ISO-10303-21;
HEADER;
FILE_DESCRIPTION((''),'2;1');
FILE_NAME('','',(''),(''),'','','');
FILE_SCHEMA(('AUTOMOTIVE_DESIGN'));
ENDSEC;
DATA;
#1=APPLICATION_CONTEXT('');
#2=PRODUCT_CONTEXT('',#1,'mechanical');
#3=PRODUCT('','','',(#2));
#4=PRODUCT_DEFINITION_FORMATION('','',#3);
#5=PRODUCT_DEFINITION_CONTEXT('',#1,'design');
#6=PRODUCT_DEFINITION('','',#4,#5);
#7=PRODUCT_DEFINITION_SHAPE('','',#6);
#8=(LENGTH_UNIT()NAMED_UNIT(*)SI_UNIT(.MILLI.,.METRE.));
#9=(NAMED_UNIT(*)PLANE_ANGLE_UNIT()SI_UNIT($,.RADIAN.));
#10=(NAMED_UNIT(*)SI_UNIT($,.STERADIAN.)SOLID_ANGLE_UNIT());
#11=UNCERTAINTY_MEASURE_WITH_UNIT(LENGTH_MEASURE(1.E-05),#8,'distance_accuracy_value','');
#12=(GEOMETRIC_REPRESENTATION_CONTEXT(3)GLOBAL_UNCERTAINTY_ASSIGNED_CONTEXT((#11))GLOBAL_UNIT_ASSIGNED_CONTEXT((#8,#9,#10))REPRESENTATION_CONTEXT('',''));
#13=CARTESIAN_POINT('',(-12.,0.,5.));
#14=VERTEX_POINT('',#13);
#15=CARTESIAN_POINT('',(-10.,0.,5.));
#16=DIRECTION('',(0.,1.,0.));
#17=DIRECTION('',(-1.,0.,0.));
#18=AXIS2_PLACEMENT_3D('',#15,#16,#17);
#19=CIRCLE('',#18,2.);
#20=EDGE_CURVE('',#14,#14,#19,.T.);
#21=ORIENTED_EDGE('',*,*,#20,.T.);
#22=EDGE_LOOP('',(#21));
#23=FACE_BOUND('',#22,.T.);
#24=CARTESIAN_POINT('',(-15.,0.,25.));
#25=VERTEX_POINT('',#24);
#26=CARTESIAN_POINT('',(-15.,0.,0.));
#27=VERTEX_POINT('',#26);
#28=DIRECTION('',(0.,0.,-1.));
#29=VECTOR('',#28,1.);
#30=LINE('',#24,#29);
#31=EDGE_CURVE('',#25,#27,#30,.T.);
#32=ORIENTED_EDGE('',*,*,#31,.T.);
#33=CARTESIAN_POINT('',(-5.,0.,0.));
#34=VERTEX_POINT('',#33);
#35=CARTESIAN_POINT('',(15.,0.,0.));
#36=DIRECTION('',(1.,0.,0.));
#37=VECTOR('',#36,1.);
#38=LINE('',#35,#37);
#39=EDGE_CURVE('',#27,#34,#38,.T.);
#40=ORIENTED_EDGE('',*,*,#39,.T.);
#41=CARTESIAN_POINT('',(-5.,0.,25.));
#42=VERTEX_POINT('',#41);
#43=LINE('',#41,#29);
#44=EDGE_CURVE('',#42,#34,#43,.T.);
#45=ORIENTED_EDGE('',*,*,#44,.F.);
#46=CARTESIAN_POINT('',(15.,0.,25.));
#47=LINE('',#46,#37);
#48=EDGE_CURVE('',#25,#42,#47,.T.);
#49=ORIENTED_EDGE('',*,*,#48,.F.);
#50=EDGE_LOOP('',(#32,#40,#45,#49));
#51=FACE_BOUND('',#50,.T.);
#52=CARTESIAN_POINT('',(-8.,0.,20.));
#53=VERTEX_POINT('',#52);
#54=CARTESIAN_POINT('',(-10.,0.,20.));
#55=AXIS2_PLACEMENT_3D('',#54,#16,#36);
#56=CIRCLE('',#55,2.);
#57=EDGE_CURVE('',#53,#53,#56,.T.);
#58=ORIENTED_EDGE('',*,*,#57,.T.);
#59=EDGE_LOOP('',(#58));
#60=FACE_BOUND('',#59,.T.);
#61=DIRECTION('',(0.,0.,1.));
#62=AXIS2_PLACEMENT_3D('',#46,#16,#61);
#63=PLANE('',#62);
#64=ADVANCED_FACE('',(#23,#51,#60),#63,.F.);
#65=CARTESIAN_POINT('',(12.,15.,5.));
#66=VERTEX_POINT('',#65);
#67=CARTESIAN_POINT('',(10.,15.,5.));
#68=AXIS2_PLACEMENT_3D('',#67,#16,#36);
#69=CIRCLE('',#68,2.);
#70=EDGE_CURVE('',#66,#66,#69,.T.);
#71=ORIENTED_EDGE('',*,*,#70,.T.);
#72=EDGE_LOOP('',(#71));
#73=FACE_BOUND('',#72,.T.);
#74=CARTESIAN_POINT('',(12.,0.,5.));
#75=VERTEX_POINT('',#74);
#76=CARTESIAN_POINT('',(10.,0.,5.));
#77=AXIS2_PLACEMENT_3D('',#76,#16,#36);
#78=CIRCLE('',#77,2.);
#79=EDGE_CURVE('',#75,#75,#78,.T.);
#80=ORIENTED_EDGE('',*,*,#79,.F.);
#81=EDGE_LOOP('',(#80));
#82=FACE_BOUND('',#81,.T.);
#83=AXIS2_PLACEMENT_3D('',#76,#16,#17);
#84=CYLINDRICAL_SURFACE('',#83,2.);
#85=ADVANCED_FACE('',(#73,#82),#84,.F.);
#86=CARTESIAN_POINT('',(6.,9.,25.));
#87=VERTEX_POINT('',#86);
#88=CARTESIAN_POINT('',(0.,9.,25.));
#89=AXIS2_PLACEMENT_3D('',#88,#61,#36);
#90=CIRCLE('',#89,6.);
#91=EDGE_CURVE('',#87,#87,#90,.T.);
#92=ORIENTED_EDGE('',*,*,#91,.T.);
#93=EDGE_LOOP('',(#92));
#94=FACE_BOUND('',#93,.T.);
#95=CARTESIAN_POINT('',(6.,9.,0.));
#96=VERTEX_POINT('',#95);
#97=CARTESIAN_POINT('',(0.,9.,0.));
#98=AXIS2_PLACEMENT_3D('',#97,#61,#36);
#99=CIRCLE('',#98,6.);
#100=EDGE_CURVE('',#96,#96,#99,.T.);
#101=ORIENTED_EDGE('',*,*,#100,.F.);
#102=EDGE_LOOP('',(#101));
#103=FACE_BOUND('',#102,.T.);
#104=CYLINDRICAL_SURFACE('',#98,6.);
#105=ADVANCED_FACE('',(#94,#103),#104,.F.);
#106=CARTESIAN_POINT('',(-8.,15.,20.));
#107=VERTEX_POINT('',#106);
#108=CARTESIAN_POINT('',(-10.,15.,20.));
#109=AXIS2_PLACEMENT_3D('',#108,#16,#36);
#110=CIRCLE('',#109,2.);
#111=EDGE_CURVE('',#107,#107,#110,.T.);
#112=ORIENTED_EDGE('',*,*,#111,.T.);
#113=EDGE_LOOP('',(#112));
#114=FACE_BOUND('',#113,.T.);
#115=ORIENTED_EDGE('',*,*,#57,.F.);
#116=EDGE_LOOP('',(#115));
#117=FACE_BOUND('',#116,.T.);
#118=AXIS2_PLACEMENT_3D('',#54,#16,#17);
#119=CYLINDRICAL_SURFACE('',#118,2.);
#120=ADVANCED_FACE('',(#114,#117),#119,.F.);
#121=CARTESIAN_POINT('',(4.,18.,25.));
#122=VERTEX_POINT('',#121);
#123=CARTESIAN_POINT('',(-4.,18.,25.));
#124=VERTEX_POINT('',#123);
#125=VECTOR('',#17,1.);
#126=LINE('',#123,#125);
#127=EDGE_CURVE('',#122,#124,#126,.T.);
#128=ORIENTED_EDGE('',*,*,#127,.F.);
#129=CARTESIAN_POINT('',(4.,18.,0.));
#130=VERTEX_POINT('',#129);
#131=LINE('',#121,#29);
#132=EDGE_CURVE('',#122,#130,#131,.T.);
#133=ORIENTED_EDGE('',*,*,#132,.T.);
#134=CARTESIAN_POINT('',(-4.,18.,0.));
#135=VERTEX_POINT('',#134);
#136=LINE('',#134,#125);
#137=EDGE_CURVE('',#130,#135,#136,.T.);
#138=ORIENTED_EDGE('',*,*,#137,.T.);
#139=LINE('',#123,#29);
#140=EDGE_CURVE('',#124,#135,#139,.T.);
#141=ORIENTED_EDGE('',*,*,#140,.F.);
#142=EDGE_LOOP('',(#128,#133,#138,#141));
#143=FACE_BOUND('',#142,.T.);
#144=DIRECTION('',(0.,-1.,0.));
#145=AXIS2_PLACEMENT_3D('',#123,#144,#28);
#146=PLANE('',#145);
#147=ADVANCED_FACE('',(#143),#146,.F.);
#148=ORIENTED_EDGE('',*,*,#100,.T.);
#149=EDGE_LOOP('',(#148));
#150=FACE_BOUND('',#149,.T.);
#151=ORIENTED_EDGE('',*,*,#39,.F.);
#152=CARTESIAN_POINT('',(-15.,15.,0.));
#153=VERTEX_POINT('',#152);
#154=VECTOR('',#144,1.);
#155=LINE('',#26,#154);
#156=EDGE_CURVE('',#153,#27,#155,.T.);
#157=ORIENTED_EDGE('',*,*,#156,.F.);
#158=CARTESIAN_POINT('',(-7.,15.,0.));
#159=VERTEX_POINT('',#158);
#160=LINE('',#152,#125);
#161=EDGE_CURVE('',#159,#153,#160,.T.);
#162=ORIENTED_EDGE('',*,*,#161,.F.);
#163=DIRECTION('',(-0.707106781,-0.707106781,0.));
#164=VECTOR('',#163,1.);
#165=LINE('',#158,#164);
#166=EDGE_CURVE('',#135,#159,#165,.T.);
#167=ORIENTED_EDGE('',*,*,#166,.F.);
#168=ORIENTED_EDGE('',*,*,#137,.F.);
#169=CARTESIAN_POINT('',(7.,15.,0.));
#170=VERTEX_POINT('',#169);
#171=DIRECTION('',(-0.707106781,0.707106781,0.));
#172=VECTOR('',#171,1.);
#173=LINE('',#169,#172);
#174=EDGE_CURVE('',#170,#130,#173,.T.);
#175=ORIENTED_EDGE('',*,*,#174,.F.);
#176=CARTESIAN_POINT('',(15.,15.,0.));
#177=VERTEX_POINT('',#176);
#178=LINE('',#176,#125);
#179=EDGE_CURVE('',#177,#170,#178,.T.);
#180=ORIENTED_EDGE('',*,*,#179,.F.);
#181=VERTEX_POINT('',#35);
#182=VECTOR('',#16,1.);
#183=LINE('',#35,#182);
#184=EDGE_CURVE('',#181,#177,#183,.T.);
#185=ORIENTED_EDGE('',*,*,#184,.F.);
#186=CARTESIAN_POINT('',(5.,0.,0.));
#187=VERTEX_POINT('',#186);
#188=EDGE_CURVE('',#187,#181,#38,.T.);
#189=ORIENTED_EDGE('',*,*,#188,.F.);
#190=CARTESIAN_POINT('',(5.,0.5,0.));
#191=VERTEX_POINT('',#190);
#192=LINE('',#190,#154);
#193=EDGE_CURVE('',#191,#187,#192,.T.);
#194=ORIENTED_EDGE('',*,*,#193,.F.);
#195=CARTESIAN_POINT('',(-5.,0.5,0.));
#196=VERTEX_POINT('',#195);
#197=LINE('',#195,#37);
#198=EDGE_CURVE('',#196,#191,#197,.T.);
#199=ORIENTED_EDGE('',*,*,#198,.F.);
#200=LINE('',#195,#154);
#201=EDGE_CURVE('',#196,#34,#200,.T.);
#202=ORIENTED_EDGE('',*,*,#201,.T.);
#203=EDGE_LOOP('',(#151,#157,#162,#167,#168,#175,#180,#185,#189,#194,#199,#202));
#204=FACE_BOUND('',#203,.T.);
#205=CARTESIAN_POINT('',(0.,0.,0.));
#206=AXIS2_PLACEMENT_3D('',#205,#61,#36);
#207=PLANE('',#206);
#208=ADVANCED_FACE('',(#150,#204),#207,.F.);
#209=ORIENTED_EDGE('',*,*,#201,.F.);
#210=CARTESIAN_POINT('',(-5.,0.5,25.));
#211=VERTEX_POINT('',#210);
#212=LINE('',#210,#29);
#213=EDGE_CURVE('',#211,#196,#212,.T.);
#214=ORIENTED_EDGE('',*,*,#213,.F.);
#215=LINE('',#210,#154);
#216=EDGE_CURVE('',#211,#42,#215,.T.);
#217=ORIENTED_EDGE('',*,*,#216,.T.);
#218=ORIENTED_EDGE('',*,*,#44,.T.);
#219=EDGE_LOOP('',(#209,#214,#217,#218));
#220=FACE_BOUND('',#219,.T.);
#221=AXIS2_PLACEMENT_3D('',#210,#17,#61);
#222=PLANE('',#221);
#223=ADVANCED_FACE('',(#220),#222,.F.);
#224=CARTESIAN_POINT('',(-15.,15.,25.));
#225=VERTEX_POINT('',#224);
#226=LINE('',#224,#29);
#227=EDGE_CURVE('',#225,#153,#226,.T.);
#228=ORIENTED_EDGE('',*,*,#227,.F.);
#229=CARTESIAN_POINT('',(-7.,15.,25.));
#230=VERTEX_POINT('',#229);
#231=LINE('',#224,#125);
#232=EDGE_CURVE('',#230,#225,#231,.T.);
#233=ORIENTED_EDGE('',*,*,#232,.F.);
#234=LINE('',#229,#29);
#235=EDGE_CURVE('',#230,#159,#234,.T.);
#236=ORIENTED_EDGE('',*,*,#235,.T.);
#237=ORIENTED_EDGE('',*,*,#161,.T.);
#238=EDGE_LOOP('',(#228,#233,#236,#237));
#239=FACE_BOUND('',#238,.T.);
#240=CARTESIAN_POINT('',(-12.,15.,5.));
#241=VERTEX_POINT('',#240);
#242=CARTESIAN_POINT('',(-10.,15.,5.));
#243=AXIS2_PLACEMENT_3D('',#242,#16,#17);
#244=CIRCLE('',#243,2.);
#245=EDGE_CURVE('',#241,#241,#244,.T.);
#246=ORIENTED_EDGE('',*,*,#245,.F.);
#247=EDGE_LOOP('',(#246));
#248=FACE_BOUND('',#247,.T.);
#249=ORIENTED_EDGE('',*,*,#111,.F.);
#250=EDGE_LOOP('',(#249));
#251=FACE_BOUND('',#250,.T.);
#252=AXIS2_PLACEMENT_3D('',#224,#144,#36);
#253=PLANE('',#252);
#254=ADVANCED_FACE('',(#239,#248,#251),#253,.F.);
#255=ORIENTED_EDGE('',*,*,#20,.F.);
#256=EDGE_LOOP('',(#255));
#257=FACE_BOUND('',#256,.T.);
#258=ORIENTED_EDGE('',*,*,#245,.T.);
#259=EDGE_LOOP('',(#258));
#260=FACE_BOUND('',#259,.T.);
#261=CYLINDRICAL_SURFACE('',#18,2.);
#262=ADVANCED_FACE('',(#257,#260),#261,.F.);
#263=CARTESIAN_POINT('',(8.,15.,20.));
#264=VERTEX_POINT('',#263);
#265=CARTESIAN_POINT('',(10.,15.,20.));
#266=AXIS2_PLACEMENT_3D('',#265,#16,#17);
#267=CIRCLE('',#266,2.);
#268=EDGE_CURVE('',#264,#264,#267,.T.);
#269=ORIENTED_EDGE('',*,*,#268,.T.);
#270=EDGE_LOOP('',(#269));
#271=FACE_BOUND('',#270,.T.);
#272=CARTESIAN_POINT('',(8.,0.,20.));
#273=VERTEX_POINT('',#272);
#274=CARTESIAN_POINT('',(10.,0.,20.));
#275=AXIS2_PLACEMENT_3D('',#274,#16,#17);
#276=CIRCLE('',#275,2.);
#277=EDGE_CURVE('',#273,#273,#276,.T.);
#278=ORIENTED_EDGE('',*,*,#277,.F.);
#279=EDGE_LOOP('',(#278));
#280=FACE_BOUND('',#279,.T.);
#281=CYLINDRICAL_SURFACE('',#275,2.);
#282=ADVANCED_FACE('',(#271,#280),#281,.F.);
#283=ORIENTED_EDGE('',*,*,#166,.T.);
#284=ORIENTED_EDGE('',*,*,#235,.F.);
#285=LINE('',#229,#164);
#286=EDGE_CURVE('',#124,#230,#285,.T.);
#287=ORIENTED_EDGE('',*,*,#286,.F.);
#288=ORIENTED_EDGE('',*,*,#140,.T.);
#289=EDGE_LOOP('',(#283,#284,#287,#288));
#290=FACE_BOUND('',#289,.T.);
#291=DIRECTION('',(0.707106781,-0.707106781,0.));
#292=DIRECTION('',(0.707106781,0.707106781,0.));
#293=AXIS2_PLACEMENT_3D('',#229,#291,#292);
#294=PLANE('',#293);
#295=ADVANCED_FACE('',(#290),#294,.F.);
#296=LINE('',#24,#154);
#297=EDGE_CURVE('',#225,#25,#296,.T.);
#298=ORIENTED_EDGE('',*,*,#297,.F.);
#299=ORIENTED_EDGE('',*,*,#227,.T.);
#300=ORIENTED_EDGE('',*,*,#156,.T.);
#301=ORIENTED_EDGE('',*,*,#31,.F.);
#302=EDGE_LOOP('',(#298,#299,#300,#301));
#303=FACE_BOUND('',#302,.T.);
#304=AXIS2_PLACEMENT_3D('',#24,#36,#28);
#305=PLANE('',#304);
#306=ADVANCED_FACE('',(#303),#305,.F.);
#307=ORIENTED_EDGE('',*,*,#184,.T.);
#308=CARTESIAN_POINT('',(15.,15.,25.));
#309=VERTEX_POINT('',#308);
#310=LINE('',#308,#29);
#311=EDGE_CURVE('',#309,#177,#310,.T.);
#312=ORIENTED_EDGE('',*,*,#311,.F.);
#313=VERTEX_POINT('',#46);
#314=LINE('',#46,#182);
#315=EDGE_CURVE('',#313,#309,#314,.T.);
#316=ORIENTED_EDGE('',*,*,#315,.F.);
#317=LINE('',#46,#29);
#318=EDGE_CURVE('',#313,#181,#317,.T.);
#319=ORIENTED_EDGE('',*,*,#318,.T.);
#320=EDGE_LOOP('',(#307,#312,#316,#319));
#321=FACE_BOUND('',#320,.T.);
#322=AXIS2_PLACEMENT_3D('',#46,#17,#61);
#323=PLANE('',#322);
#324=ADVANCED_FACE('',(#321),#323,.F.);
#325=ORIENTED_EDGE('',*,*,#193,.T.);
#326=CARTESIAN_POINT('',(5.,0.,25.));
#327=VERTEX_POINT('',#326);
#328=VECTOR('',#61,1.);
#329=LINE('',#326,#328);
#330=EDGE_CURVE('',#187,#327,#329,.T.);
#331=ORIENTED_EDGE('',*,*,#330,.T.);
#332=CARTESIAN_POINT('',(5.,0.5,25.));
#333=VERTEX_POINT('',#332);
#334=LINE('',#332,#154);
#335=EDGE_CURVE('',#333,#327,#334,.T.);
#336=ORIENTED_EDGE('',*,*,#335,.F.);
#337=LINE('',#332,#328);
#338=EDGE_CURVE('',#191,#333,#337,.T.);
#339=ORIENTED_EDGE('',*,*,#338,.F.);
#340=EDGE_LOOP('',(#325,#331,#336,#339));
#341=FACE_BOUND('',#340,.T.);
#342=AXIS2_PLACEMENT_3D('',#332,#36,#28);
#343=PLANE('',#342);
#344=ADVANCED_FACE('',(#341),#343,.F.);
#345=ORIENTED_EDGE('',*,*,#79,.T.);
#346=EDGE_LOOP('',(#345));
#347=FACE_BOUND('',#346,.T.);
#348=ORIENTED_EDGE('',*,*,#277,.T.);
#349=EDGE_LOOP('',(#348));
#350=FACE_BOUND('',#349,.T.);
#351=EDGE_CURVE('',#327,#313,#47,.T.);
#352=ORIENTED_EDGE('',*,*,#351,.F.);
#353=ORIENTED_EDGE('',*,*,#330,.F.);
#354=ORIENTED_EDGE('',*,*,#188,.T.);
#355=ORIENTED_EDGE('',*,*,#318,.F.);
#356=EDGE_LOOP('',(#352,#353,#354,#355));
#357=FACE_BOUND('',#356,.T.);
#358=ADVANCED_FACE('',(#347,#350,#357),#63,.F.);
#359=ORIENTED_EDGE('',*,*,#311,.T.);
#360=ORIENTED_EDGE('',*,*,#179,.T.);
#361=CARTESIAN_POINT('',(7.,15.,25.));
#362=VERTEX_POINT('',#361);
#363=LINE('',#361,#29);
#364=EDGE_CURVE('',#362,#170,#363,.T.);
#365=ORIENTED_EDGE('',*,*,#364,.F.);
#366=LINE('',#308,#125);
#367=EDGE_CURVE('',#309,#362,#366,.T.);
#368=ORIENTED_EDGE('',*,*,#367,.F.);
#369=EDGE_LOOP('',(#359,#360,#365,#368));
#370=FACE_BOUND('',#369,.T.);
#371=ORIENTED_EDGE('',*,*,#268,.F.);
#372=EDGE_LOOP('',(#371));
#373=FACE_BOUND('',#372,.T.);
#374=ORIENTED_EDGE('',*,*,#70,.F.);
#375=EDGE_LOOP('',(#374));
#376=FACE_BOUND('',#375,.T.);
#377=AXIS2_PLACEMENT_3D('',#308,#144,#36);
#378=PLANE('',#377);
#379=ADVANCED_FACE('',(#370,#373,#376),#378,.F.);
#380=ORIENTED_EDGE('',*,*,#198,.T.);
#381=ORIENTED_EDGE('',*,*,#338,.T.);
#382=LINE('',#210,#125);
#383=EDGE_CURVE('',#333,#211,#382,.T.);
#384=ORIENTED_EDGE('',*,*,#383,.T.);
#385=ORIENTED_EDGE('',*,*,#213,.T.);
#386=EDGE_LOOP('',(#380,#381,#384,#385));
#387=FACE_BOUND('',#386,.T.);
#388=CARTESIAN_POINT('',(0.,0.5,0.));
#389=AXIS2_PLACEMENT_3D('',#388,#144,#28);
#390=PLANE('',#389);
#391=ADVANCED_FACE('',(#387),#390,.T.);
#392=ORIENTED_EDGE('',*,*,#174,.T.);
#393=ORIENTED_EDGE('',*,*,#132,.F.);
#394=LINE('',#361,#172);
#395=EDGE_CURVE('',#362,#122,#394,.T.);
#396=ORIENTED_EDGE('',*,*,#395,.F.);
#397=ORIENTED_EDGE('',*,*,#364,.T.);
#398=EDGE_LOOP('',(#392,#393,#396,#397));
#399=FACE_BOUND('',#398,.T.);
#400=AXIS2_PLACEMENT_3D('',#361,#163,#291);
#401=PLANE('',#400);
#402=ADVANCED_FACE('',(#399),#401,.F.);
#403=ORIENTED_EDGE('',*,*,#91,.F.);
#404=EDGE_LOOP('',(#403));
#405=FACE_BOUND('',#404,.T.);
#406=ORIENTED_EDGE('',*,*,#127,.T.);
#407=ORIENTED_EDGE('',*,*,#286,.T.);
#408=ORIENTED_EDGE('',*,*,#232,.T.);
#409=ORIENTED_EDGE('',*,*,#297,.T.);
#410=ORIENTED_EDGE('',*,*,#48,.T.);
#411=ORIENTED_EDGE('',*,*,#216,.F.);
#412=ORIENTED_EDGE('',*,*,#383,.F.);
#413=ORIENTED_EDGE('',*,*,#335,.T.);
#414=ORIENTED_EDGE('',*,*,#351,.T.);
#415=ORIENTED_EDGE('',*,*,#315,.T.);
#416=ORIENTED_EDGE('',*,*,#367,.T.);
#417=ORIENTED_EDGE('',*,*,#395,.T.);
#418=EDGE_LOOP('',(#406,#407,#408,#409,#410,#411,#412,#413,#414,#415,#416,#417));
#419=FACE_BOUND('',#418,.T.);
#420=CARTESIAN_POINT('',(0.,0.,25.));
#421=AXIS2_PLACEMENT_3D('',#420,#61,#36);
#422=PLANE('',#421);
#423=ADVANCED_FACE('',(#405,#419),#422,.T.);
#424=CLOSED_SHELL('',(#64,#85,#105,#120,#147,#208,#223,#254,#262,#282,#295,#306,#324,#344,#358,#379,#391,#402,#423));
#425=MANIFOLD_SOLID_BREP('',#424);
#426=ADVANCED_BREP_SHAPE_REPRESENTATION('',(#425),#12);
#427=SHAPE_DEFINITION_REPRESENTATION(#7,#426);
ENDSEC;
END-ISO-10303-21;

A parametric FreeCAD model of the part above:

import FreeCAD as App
import Part
import Sketcher

V = App.Vector

doc = App.newDocument("Part")
body = doc.addObject("PartDesign::Body", "Body")

sketch1 = body.newObject("Sketcher::SketchObject", "Sketch")
sketch1.AttachmentSupport = (doc.getObject("XY_Plane"), [""])
sketch1.MapMode = "FlatFace"
sketch1.addGeometry([
    Part.LineSegment(V(-15, 0, 0), V(15, 0, 0)),
    Part.LineSegment(V(15, 0, 0), V(15, 15, 0)),
    Part.LineSegment(V(15, 15, 0), V(7, 15, 0)),
    Part.LineSegment(V(7, 15, 0), V(4, 18, 0)),
    Part.LineSegment(V(4, 18, 0), V(-4, 18, 0)),
    Part.LineSegment(V(-4, 18, 0), V(-7, 15, 0)),
    Part.LineSegment(V(-7, 15, 0), V(-15, 15, 0)),
    Part.LineSegment(V(-15, 15, 0), V(-15, 0, 0)),
], False)
sketch1.addConstraint([
    Sketcher.Constraint("Coincident", 0, 2, 1, 1),
    Sketcher.Constraint("Coincident", 1, 2, 2, 1),
    Sketcher.Constraint("Coincident", 2, 2, 3, 1),
    Sketcher.Constraint("Coincident", 3, 2, 4, 1),
    Sketcher.Constraint("Coincident", 4, 2, 5, 1),
    Sketcher.Constraint("Coincident", 5, 2, 6, 1),
    Sketcher.Constraint("Coincident", 6, 2, 7, 1),
    Sketcher.Constraint("Coincident", 7, 2, 0, 1),
    Sketcher.Constraint("Horizontal", 0),
    Sketcher.Constraint("Vertical", 1),
    Sketcher.Constraint("Horizontal", 2),
    Sketcher.Constraint("Horizontal", 4),
    Sketcher.Constraint("Horizontal", 6),
    Sketcher.Constraint("Vertical", 7),
    Sketcher.Constraint("Symmetric", 0, 2, 7, 2, -1, 1),
    Sketcher.Constraint("Symmetric", 2, 2, 5, 2, -2),
    Sketcher.Constraint("Perpendicular", 3, 5),
    Sketcher.Constraint("Equal", 2, 4),
    Sketcher.Constraint("Equal", 3, 5),
    Sketcher.Constraint("DistanceX", 0, 1, 0, 2, 30.0),
    Sketcher.Constraint("DistanceX", 2, 2, 2, 1, 8.0),
    Sketcher.Constraint("DistanceY", 1, 1, 1, 2, 15.0),
])
pad1 = body.newObject("PartDesign::Pad", "Pad")
pad1.Profile = sketch1
pad1.Length = 25

sketch2 = body.newObject("Sketcher::SketchObject", "Sketch001")
sketch2.AttachmentSupport = (doc.getObject("XY_Plane"), [""])
sketch2.MapMode = "FlatFace"
sketch2.AttachmentOffset = App.Placement(V(0, 0, 25), App.Rotation())
sketch2.addGeometry(Part.Circle(V(0, 9, 0), V(0, 0, 1), 6), False)
sketch2.addConstraint([
    Sketcher.Constraint("PointOnObject", 0, 3, -2),
    Sketcher.Constraint("Diameter", 0, 12.0),
    Sketcher.Constraint("DistanceY", -1, 1, 0, 3, 9.0),
])
pocket1 = body.newObject("PartDesign::Pocket", "Pocket")
pocket1.Profile = sketch2
pocket1.Length = 25

sketch3 = body.newObject("Sketcher::SketchObject", "Sketch002")
sketch3.AttachmentSupport = (doc.getObject("XZ_Plane"), [""])
sketch3.MapMode = "FlatFace"
sketch3.AttachmentOffset = App.Placement(V(0, 0, -15), App.Rotation())
sketch3.addGeometry([
    Part.Circle(V(-10, 5, 0), V(0, 0, 1), 2),
    Part.Circle(V(10, 5, 0), V(0, 0, 1), 2),
    Part.Circle(V(10, 20, 0), V(0, 0, 1), 2),
    Part.Circle(V(-10, 20, 0), V(0, 0, 1), 2),
], False)
sketch3.addConstraint([
    Sketcher.Constraint("Equal", 0, 1),
    Sketcher.Constraint("Equal", 1, 2),
    Sketcher.Constraint("Equal", 2, 3),
    Sketcher.Constraint("Symmetric", 0, 3, 1, 3, -2),
    Sketcher.Constraint("Symmetric", 2, 3, 3, 3, -2),
    Sketcher.Constraint("Vertical", 1, 3, 2, 3),
    Sketcher.Constraint("Diameter", 0, 4.0),
    Sketcher.Constraint("DistanceX", 0, 3, -1, 1, 10.0),
    Sketcher.Constraint("DistanceY", -1, 1, 0, 3, 5.0),
    Sketcher.Constraint("DistanceY", -1, 1, 2, 3, 20.0),
])
pocket2 = body.newObject("PartDesign::Pocket", "Pocket001")
pocket2.Profile = sketch3
pocket2.Type = "ThroughAll"
pocket2.Reversed = True

sketch4 = body.newObject("Sketcher::SketchObject", "Sketch003")
sketch4.AttachmentSupport = (doc.getObject("XZ_Plane"), [""])
sketch4.MapMode = "FlatFace"
sketch4.addGeometry([
    Part.LineSegment(V(-5, 25, 0), V(-5, 0, 0)),
    Part.LineSegment(V(-5, 0, 0), V(5, 0, 0)),
    Part.LineSegment(V(5, 0, 0), V(5, 25, 0)),
    Part.LineSegment(V(5, 25, 0), V(-5, 25, 0)),
], False)
sketch4.addConstraint([
    Sketcher.Constraint("Coincident", 0, 2, 1, 1),
    Sketcher.Constraint("Coincident", 1, 2, 2, 1),
    Sketcher.Constraint("Coincident", 2, 2, 3, 1),
    Sketcher.Constraint("Coincident", 3, 2, 0, 1),
    Sketcher.Constraint("Vertical", 0),
    Sketcher.Constraint("Horizontal", 1),
    Sketcher.Constraint("Vertical", 2),
    Sketcher.Constraint("Horizontal", 3),
    Sketcher.Constraint("Symmetric", 0, 2, 1, 2, -1, 1),
    Sketcher.Constraint("DistanceX", 1, 1, 1, 2, 10.0),
    Sketcher.Constraint("DistanceY", 0, 2, 0, 1, 25.0),
])
pocket3 = body.newObject("PartDesign::Pocket", "Pocket002")
pocket3.Profile = sketch4
pocket3.Length = 0.5

doc.recompute()
